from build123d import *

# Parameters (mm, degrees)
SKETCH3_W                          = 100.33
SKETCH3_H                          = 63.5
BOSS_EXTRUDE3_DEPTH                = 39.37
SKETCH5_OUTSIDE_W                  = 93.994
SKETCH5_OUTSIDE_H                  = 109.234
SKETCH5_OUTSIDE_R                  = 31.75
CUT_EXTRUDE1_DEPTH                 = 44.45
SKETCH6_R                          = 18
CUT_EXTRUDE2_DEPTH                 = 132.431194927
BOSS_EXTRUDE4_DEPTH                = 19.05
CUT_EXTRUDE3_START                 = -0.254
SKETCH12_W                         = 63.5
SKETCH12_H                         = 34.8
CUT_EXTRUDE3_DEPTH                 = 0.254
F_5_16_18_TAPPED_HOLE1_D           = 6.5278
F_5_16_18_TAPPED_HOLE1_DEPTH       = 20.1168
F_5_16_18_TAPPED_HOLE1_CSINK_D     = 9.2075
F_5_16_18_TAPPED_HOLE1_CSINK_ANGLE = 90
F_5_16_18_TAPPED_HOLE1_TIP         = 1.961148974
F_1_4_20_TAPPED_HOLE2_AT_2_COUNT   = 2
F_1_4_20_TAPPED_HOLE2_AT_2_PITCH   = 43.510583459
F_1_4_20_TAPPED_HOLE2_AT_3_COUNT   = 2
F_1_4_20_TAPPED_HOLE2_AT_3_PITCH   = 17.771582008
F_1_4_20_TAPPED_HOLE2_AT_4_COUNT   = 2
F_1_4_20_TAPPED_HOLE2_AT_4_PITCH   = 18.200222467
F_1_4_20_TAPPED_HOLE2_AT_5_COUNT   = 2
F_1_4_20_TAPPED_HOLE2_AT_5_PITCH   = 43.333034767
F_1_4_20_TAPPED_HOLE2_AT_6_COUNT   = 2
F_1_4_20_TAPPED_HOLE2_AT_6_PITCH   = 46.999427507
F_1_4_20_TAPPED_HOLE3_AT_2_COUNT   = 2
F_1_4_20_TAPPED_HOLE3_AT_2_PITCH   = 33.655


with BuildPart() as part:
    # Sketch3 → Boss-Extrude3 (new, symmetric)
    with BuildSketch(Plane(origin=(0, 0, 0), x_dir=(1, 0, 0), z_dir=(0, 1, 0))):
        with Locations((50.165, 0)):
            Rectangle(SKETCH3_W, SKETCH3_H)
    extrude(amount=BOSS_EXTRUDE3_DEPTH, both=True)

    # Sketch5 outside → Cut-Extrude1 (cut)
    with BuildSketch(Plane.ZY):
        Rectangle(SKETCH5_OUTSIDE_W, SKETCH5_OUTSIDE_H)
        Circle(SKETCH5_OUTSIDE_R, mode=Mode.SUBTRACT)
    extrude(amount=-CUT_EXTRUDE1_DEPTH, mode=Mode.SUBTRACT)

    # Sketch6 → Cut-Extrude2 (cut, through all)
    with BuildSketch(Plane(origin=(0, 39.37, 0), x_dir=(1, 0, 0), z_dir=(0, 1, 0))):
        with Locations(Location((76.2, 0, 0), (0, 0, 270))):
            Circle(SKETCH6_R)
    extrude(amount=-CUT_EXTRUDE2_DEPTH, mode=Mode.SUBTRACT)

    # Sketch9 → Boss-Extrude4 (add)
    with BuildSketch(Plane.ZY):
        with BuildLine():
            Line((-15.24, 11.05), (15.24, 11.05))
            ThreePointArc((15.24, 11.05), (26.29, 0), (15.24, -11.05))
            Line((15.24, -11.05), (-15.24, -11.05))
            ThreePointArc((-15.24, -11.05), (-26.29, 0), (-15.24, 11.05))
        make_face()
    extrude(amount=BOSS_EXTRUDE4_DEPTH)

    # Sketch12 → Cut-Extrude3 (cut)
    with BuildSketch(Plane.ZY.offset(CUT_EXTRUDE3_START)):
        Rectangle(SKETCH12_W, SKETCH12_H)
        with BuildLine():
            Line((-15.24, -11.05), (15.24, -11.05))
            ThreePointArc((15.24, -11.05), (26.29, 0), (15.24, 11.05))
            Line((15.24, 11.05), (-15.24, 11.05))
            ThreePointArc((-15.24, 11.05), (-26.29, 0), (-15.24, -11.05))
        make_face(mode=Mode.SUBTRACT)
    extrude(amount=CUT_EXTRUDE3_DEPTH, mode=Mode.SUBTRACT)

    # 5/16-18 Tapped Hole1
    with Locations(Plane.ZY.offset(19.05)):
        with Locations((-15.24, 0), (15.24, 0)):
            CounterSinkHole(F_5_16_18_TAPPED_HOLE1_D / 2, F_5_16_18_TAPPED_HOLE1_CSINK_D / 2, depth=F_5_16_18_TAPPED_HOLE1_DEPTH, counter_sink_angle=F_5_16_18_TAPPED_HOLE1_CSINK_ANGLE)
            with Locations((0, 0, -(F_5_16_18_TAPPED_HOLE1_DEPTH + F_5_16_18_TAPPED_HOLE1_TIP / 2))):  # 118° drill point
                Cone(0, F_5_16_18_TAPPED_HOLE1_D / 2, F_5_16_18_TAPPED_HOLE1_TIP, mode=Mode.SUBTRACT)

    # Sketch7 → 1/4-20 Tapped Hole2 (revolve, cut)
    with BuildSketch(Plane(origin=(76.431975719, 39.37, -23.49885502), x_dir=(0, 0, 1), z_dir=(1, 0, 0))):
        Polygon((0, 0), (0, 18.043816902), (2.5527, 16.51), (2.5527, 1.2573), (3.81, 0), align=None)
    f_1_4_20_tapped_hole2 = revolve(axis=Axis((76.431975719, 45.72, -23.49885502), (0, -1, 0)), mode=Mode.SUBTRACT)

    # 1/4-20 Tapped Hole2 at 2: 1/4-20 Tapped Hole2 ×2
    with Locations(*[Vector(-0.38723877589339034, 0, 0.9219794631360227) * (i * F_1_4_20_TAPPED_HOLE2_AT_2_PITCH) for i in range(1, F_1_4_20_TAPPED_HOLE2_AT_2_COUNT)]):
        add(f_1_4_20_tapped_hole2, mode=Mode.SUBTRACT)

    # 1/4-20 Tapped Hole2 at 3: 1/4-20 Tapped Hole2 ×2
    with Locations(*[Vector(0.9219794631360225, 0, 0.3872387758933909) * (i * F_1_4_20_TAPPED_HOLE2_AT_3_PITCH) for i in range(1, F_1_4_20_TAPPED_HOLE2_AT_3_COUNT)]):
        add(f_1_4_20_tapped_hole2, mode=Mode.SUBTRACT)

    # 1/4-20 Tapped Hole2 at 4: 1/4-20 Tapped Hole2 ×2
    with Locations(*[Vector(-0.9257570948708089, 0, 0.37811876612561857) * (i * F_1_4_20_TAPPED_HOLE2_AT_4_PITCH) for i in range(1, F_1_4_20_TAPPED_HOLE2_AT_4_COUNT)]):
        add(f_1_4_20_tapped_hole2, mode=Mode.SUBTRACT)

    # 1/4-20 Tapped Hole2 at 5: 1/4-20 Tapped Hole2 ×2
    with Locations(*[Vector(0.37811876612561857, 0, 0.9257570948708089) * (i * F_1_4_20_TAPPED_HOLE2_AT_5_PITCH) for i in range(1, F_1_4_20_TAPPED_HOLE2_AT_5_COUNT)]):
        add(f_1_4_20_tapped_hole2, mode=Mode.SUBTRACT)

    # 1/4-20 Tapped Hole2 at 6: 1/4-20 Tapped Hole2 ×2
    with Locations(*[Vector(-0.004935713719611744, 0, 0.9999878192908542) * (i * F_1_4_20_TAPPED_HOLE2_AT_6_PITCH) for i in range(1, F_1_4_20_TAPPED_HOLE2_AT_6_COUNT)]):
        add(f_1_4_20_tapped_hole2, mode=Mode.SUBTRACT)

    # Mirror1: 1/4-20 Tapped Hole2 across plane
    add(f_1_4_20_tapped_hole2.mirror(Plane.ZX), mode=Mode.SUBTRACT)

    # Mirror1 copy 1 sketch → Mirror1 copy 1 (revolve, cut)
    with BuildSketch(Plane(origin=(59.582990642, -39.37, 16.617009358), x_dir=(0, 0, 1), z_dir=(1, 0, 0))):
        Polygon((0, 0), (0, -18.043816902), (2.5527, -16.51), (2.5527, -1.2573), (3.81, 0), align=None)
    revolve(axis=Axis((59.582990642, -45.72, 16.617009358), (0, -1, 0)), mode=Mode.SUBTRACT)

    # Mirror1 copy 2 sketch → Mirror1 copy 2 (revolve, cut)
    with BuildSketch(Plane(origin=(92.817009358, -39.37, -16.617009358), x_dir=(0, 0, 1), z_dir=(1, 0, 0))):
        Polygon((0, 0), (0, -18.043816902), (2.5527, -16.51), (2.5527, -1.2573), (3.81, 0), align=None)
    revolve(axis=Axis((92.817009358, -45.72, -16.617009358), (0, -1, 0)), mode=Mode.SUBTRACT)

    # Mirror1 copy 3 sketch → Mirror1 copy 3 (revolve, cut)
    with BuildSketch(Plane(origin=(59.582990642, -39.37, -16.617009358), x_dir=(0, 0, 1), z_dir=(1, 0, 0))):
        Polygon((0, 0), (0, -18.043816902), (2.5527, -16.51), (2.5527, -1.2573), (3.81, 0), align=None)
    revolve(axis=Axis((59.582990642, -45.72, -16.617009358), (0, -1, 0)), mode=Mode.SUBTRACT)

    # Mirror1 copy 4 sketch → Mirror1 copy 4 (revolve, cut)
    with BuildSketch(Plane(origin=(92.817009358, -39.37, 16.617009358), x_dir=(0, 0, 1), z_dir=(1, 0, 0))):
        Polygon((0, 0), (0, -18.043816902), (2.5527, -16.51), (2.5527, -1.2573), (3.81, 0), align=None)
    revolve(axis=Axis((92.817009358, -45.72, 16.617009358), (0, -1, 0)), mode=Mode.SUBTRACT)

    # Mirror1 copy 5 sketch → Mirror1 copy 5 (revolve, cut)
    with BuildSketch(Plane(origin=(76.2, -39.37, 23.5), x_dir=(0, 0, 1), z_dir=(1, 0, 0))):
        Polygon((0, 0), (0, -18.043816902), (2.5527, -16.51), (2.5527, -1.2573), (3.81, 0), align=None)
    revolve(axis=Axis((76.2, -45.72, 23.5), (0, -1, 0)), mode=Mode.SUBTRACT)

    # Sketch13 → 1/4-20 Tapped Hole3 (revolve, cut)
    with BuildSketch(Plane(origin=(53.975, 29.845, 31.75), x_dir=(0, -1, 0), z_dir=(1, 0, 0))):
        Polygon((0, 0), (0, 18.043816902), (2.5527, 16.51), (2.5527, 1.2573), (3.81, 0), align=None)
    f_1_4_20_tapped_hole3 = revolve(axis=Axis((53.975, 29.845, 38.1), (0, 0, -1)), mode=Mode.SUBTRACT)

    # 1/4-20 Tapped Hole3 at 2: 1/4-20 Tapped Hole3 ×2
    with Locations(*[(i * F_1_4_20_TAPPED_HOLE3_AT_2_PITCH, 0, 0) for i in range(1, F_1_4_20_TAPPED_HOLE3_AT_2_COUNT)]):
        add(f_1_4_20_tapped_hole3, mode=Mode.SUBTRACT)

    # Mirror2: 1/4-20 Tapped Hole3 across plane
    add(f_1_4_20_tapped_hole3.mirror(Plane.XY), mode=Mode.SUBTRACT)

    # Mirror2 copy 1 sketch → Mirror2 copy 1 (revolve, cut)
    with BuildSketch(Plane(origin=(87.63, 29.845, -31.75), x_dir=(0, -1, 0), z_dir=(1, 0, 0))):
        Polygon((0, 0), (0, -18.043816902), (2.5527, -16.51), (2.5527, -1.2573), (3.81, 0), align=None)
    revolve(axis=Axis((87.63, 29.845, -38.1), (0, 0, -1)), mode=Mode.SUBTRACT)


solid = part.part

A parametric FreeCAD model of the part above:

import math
import FreeCAD as App
import Part
import Sketcher

V = App.Vector
Q = App.Units.Quantity


def add_polygon(sketch, points):
    """Adds a closed chain of lines whose ends are joined by coincident constraints."""
    first, n = sketch.GeometryCount, len(points)
    for a, b in zip(points, points[1:] + points[:1]):
        sketch.addGeometry(Part.LineSegment(App.Vector(*a, 0), App.Vector(*b, 0)), False)
    for i in range(n):
        sketch.addConstraint(Sketcher.Constraint("Coincident", first + i, 2, first + (i + 1) % n, 1))

doc = App.newDocument("Part")
body = doc.addObject("PartDesign::Body", "Body")

# Sketch on XZ plane
sketch1 = body.newObject("Sketcher::SketchObject", "Sketch")
sketch1.AttachmentSupport = (doc.getObject("XZ_Plane"), [""])
sketch1.MapMode = "FlatFace"
add_polygon(sketch1, [(0, -31.75), (0, 31.75), (100.33, 31.75), (100.33, -31.75)])  # lines 0-3
sketch1.addConstraint([
    Sketcher.Constraint("Vertical", 0),
    Sketcher.Constraint("Horizontal", 1),
    Sketcher.Constraint("Vertical", 2),
    Sketcher.Constraint("Horizontal", 3),
    Sketcher.Constraint("Symmetric", 0, 2, 3, 2, -1, 1),
    Sketcher.Constraint("DistanceY", 0, 1, 0, 2, Q("2.5 in")),
    Sketcher.Constraint("DistanceX", 1, 1, 1, 2, Q("3.95 in")),
])
pad1 = body.newObject("PartDesign::Pad", "Pad")
pad1.Profile = sketch1
pad1.Length = Q("3.1 in")
pad1.Midplane = True

# Sketch on YZ plane
sketch2 = body.newObject("Sketcher::SketchObject", "Sketch001")
sketch2.AttachmentSupport = (doc.getObject("YZ_Plane"), [""])
sketch2.MapMode = "FlatFace"
add_polygon(sketch2, [(54.617, -46.997), (-54.617, -46.997), (-54.617, 46.997), (54.617, 46.997)])  # lines 0-3
sketch2.addGeometry(Part.Circle(V(0, 0, 0), V(0, 0, 1), 31.75), False)  # 4
sketch2.addConstraint([
    Sketcher.Constraint("Horizontal", 0),
    Sketcher.Constraint("Vertical", 1),
    Sketcher.Constraint("Horizontal", 2),
    Sketcher.Constraint("Vertical", 3),
    Sketcher.Constraint("Coincident", 4, 3, -1, 1),
    Sketcher.Constraint("Symmetric", 0, 2, 2, 2, -1, 1),
    Sketcher.Constraint("Diameter", 4, Q("2.5 in")),
    Sketcher.Constraint("DistanceX", 0, 2, 0, 1, Q("109.234 mm")),
    Sketcher.Constraint("DistanceY", 1, 1, 1, 2, Q("93.994 mm")),
])
pocket1 = body.newObject("PartDesign::Pocket", "Pocket")
pocket1.Profile = sketch2
pocket1.Length = Q("1.75 in")
pocket1.Reversed = True

# Sketch on XZ plane
sketch3 = body.newObject("Sketcher::SketchObject", "Sketch002")
sketch3.AttachmentSupport = (doc.getObject("XZ_Plane"), [""])
sketch3.MapMode = "FlatFace"
sketch3.AttachmentOffset = App.Placement(V(0, 0, -1.55 * 25.4), App.Rotation())
sketch3.addGeometry(Part.Circle(V(76.2, 0, 0), V(0, 0, 1), 18), False)
sketch3.addConstraint([
    Sketcher.Constraint("PointOnObject", 0, 3, -1),
    Sketcher.Constraint("DistanceX", -1, 1, 0, 3, Q("3 in")),
    Sketcher.Constraint("Diameter", 0, Q("36 mm")),
])
pocket2 = body.newObject("PartDesign::Pocket", "Pocket001")
pocket2.Profile = sketch3
pocket2.Type = "ThroughAll"
pocket2.Reversed = True

# Sketch on YZ plane
sketch4 = body.newObject("Sketcher::SketchObject", "Sketch003")
sketch4.AttachmentSupport = (doc.getObject("YZ_Plane"), [""])
sketch4.MapMode = "FlatFace"
sketch4.addGeometry([
    Part.LineSegment(V(11.05, 15.24, 0), V(11.05, -15.24, 0)),
    Part.ArcOfCircle(Part.Circle(V(0, -15.24, 0), V(0, 0, 1), 11.05), math.radians(180), math.radians(360)),
    Part.LineSegment(V(-11.05, -15.24, 0), V(-11.05, 15.24, 0)),
    Part.ArcOfCircle(Part.Circle(V(0, 15.24, 0), V(0, 0, 1), 11.05), math.radians(0), math.radians(180)),
], False)
sketch4.addConstraint([
    Sketcher.Constraint("Tangent", 0, 2, 1, 2),
    Sketcher.Constraint("Tangent", 1, 1, 2, 1),
    Sketcher.Constraint("Tangent", 2, 2, 3, 2),
    Sketcher.Constraint("Tangent", 3, 1, 0, 1),
    Sketcher.Constraint("Vertical", 0),
    Sketcher.Constraint("Vertical", 2),
    Sketcher.Constraint("Symmetric", 1, 3, 3, 3, -1, 1),
    Sketcher.Constraint("DistanceY", 0, 2, 0, 1, Q("1.2 in")),
    Sketcher.Constraint("Radius", 1, Q("11.05 mm")),
])
pad2 = body.newObject("PartDesign::Pad", "Pad001")
pad2.Profile = sketch4
pad2.Length = Q("0.75 in")
pad2.Reversed = True

# Sketch on YZ plane
sketch5 = body.newObject("Sketcher::SketchObject", "Sketch004")
sketch5.AttachmentSupport = (doc.getObject("YZ_Plane"), [""])
sketch5.MapMode = "FlatFace"
sketch5.AttachmentOffset = App.Placement(V(0, 0, 0.01 * 25.4), App.Rotation())
add_polygon(sketch5, [(17.4, -31.75), (-17.4, -31.75), (-17.4, 31.75), (17.4, 31.75)])  # lines 0-3
sketch5.addGeometry(Part.LineSegment(V(-11.05, 15.24, 0), V(-11.05, -15.24, 0)), False)  # 4
sketch5.addGeometry(Part.ArcOfCircle(Part.Circle(V(0, -15.24, 0), V(0, 0, 1), 11.05), math.radians(180), math.radians(360)), False)  # 5
sketch5.addGeometry(Part.LineSegment(V(11.05, -15.24, 0), V(11.05, 15.24, 0)), False)  # 6
sketch5.addGeometry(Part.ArcOfCircle(Part.Circle(V(0, 15.24, 0), V(0, 0, 1), 11.05), math.radians(0), math.radians(180)), False)  # 7
sketch5.addConstraint([
    Sketcher.Constraint("Tangent", 4, 2, 5, 1),
    Sketcher.Constraint("Tangent", 5, 2, 6, 1),
    Sketcher.Constraint("Tangent", 6, 2, 7, 1),
    Sketcher.Constraint("Tangent", 7, 2, 4, 1),
    Sketcher.Constraint("Horizontal", 0),
    Sketcher.Constraint("Vertical", 1),
    Sketcher.Constraint("Horizontal", 2),
    Sketcher.Constraint("Vertical", 3),
    Sketcher.Constraint("Vertical", 4),
    Sketcher.Constraint("Vertical", 6),
    Sketcher.Constraint("Symmetric", 5, 3, 7, 3, -1, 1),
    Sketcher.Constraint("Symmetric", 0, 2, 2, 2, -1, 1),
    Sketcher.Constraint("DistanceY", 1, 1, 1, 2, Q("2.5 in")),
    Sketcher.Constraint("DistanceY", 4, 2, 4, 1, Q("1.2 in")),
    Sketcher.Constraint("Radius", 5, Q("11.05 mm")),
    Sketcher.Constraint("DistanceX", 0, 2, 4, 2, Q("0.25 in")),
])
pocket3 = body.newObject("PartDesign::Pocket", "Pocket002")
pocket3.Profile = sketch5
pocket3.Length = Q("0.01 in")

# Sketch on YZ plane
sketch6 = body.newObject("Sketcher::SketchObject", "Sketch005")
sketch6.AttachmentSupport = (doc.getObject("YZ_Plane"), [""])
sketch6.MapMode = "FlatFace"
sketch6.AttachmentOffset = App.Placement(V(0, 0, -0.75 * 25.4), App.Rotation())
sketch6.addGeometry([
    Part.Circle(V(0, -15.24, 0), V(0, 0, 1), 3.2639),
    Part.Circle(V(0, 15.24, 0), V(0, 0, 1), 3.2639),
], False)
sketch6.addConstraint([
    Sketcher.Constraint("Equal", 0, 1),
    Sketcher.Constraint("Symmetric", 0, 3, 1, 3, -1, 1),
    Sketcher.Constraint("PointOnObject", 0, 3, -2),
    Sketcher.Constraint("Diameter", 0, Q("0.257 in")),
    Sketcher.Constraint("DistanceY", 0, 3, -1, 1, Q("0.6 in")),
])
doc.recompute()
hole = body.newObject("PartDesign::Hole", "Hole")
hole.Profile = sketch6
hole.ThreadType = "None"
hole.Diameter = Q("0.257 in")
hole.DepthType = "Dimension"
hole.Depth = Q("0.792 in")
hole.DrillPoint = "Angled"
hole.DrillPointAngle = 118
hole.HoleCutType = "Countersink"
hole.HoleCutDiameter = Q("0.3625 in")
hole.HoleCutCountersinkAngle = 90
hole.Reversed = True

# Sketch on YZ plane
sketch7 = body.newObject("Sketcher::SketchObject", "Sketch006")
sketch7.AttachmentSupport = (doc.getObject("YZ_Plane"), [""])
sketch7.MapMode = "FlatFace"
sketch7.AttachmentOffset = App.Placement(V(0, 0, 76.431976), App.Rotation())
add_polygon(sketch7, [(21.326183, -23.498855), (39.37, -23.498855), (39.37, -19.688855), (38.1127, -20.946155), (22.86, -20.946155)])  # lines 0-4
sketch7.addGeometry(Part.LineSegment(V(39.37, -23.498855, 0), V(21.326183, -23.498855, 0)), True)  # axis
sketch7.addConstraint([
    Sketcher.Constraint("Horizontal", 0),
    Sketcher.Constraint("Vertical", 1),
    Sketcher.Constraint("Horizontal", 3),
    Sketcher.Constraint("Horizontal", 5),
    Sketcher.Constraint("Coincident", 5, 1, 0, 2),
    Sketcher.Constraint("Equal", 0, 5),
    Sketcher.Constraint("Angle", 2, Q("-135 deg")),
    Sketcher.Constraint("Angle", 4, Q("-121 deg")),
    Sketcher.Constraint("DistanceY", 1, 1, 1, 2, Q("0.15 in")),
    Sketcher.Constraint("DistanceX", -1, 1, 3, 2, Q("0.9 in")),
    Sketcher.Constraint("DistanceX", -1, 1, 0, 2, Q("1.55 in")),
    Sketcher.Constraint("DistanceX", 3, 2, 3, 1, Q("0.6005 in")),
    Sketcher.Constraint("DistanceY", 0, 2, -1, 1, Q("23.498855 mm")),
])
groove = body.newObject("PartDesign::Groove", "Groove")
groove.Profile = sketch7
groove.ReferenceAxis = (sketch7, ["Axis0"])
groove.Angle = 360
doc.recompute()

datumline = body.newObject("PartDesign::Line", "DatumLine")
datumline.Placement = App.Placement(V(0, 0, 0), App.Rotation(V(0, 0, 1), V(-0.387238776, 0, 0.921979463)))
linearpattern = body.newObject("PartDesign::LinearPattern", "LinearPattern")
linearpattern.Originals = [groove]
linearpattern.Direction = (datumline, [""])
linearpattern.Mode = "offset"
linearpattern.Offset = 43.510583
linearpattern.Occurrences = 2
body.Tip = linearpattern
doc.recompute()

datumline2 = body.newObject("PartDesign::Line", "DatumLine001")
datumline2.Placement = App.Placement(V(0, 0, 0), App.Rotation(V(0, 0, 1), V(0.921979463, 0, 0.387238776)))
linearpattern2 = body.newObject("PartDesign::LinearPattern", "LinearPattern001")
linearpattern2.Originals = [groove]
linearpattern2.Direction = (datumline2, [""])
linearpattern2.Mode = "offset"
linearpattern2.Offset = 17.771582
linearpattern2.Occurrences = 2
body.Tip = linearpattern2
doc.recompute()

datumline3 = body.newObject("PartDesign::Line", "DatumLine002")
datumline3.Placement = App.Placement(V(0, 0, 0), App.Rotation(V(0, 0, 1), V(-0.925757095, 0, 0.378118766)))
linearpattern3 = body.newObject("PartDesign::LinearPattern", "LinearPattern002")
linearpattern3.Originals = [groove]
linearpattern3.Direction = (datumline3, [""])
linearpattern3.Mode = "offset"
linearpattern3.Offset = 18.200222
linearpattern3.Occurrences = 2
body.Tip = linearpattern3
doc.recompute()

datumline4 = body.newObject("PartDesign::Line", "DatumLine003")
datumline4.Placement = App.Placement(V(0, 0, 0), App.Rotation(V(0, 0, 1), V(0.378118766, 0, 0.925757095)))
linearpattern4 = body.newObject("PartDesign::LinearPattern", "LinearPattern003")
linearpattern4.Originals = [groove]
linearpattern4.Direction = (datumline4, [""])
linearpattern4.Mode = "offset"
linearpattern4.Offset = 43.333035
linearpattern4.Occurrences = 2
body.Tip = linearpattern4
doc.recompute()

datumline5 = body.newObject("PartDesign::Line", "DatumLine004")
datumline5.Placement = App.Placement(V(0, 0, 0), App.Rotation(V(0, 0, 1), V(-0.004935714, 0, 0.999987819)))
linearpattern5 = body.newObject("PartDesign::LinearPattern", "LinearPattern004")
linearpattern5.Originals = [groove]
linearpattern5.Direction = (datumline5, [""])
linearpattern5.Mode = "offset"
linearpattern5.Offset = 46.999428
linearpattern5.Occurrences = 2
body.Tip = linearpattern5
doc.recompute()

mirrored = body.newObject("PartDesign::Mirrored", "Mirrored")
mirrored.Originals = [groove]
mirrored.MirrorPlane = (doc.getObject("XZ_Plane"), [""])
body.Tip = mirrored

# Sketch on YZ plane
sketch8 = body.newObject("Sketcher::SketchObject", "Sketch007")
sketch8.AttachmentSupport = (doc.getObject("YZ_Plane"), [""])
sketch8.MapMode = "FlatFace"
sketch8.AttachmentOffset = App.Placement(V(0, 0, 59.582991), App.Rotation())
add_polygon(sketch8, [(-39.37, 16.617009), (-21.326183, 16.617009), (-22.86, 19.169709), (-38.1127, 19.169709), (-39.37, 20.427009)])  # lines 0-4
sketch8.addGeometry(Part.LineSegment(V(-21.326183, 16.617009, 0), V(-39.37, 16.617009, 0)), True)  # axis
sketch8.addConstraint([
    Sketcher.Constraint("Horizontal", 0),
    Sketcher.Constraint("Horizontal", 2),
    Sketcher.Constraint("Vertical", 4),
    Sketcher.Constraint("Horizontal", 5),
    Sketcher.Constraint("Coincident", 5, 1, 0, 2),
    Sketcher.Constraint("Vertical", 3, 2, 5, 2),
    Sketcher.Constraint("Angle", 1, Q("121 deg")),
    Sketcher.Constraint("Angle", 3, Q("135 deg")),
    Sketcher.Constraint("DistanceY", 4, 2, 4, 1, Q("0.15 in")),
    Sketcher.Constraint("DistanceX", 1, 2, -1, 1, Q("0.9 in")),
    Sketcher.Constraint("DistanceX", 3, 2, -1, 1, Q("1.55 in")),
    Sketcher.Constraint("DistanceX", 2, 2, 2, 1, Q("0.6005 in")),
    Sketcher.Constraint("DistanceY", -1, 1, 0, 2, Q("16.617009 mm")),
])
groove2 = body.newObject("PartDesign::Groove", "Groove001")
groove2.Profile = sketch8
groove2.ReferenceAxis = (sketch8, ["Axis0"])
groove2.Angle = 360

# Sketch on YZ plane
sketch9 = body.newObject("Sketcher::SketchObject", "Sketch008")
sketch9.AttachmentSupport = (doc.getObject("YZ_Plane"), [""])
sketch9.MapMode = "FlatFace"
sketch9.AttachmentOffset = App.Placement(V(0, 0, 92.817009), App.Rotation())
add_polygon(sketch9, [(-39.37, -16.617009), (-21.326183, -16.617009), (-22.86, -14.064309), (-38.1127, -14.064309), (-39.37, -12.807009)])  # lines 0-4
sketch9.addGeometry(Part.LineSegment(V(-21.326183, -16.617009, 0), V(-39.37, -16.617009, 0)), True)  # axis
sketch9.addConstraint([
    Sketcher.Constraint("Horizontal", 0),
    Sketcher.Constraint("Horizontal", 2),
    Sketcher.Constraint("Vertical", 4),
    Sketcher.Constraint("Horizontal", 5),
    Sketcher.Constraint("Coincident", 5, 1, 0, 2),
    Sketcher.Constraint("Vertical", 3, 2, 5, 2),
    Sketcher.Constraint("Angle", 1, Q("121 deg")),
    Sketcher.Constraint("Angle", 3, Q("135 deg")),
    Sketcher.Constraint("DistanceY", 4, 2, 4, 1, Q("0.15 in")),
    Sketcher.Constraint("DistanceX", 1, 2, -1, 1, Q("0.9 in")),
    Sketcher.Constraint("DistanceX", 3, 2, -1, 1, Q("1.55 in")),
    Sketcher.Constraint("DistanceX", 2, 2, 2, 1, Q("0.6005 in")),
    Sketcher.Constraint("DistanceY", 0, 2, -1, 1, Q("16.617009 mm")),
])
groove3 = body.newObject("PartDesign::Groove", "Groove002")
groove3.Profile = sketch9
groove3.ReferenceAxis = (sketch9, ["Axis0"])
groove3.Angle = 360

# Sketch on YZ plane
sketch10 = body.newObject("Sketcher::SketchObject", "Sketch009")
sketch10.AttachmentSupport = (doc.getObject("YZ_Plane"), [""])
sketch10.MapMode = "FlatFace"
sketch10.AttachmentOffset = App.Placement(V(0, 0, 59.582991), App.Rotation())
add_polygon(sketch10, [(-39.37, -16.617009), (-21.326183, -16.617009), (-22.86, -14.064309), (-38.1127, -14.064309), (-39.37, -12.807009)])  # lines 0-4
sketch10.addGeometry(Part.LineSegment(V(-21.326183, -16.617009, 0), V(-39.37, -16.617009, 0)), True)  # axis
sketch10.addConstraint([
    Sketcher.Constraint("Horizontal", 0),
    Sketcher.Constraint("Horizontal", 2),
    Sketcher.Constraint("Vertical", 4),
    Sketcher.Constraint("Horizontal", 5),
    Sketcher.Constraint("Coincident", 5, 1, 0, 2),
    Sketcher.Constraint("Vertical", 3, 2, 5, 2),
    Sketcher.Constraint("Angle", 1, Q("121 deg")),
    Sketcher.Constraint("Angle", 3, Q("135 deg")),
    Sketcher.Constraint("DistanceY", 4, 2, 4, 1, Q("0.15 in")),
    Sketcher.Constraint("DistanceX", 1, 2, -1, 1, Q("0.9 in")),
    Sketcher.Constraint("DistanceX", 3, 2, -1, 1, Q("1.55 in")),
    Sketcher.Constraint("DistanceX", 2, 2, 2, 1, Q("0.6005 in")),
    Sketcher.Constraint("DistanceY", 0, 2, -1, 1, Q("16.617009 mm")),
])
groove4 = body.newObject("PartDesign::Groove", "Groove003")
groove4.Profile = sketch10
groove4.ReferenceAxis = (sketch10, ["Axis0"])
groove4.Angle = 360

# Sketch on YZ plane
sketch11 = body.newObject("Sketcher::SketchObject", "Sketch010")
sketch11.AttachmentSupport = (doc.getObject("YZ_Plane"), [""])
sketch11.MapMode = "FlatFace"
sketch11.AttachmentOffset = App.Placement(V(0, 0, 92.817009), App.Rotation())
add_polygon(sketch11, [(-39.37, 16.617009), (-21.326183, 16.617009), (-22.86, 19.169709), (-38.1127, 19.169709), (-39.37, 20.427009)])  # lines 0-4
sketch11.addGeometry(Part.LineSegment(V(-21.326183, 16.617009, 0), V(-39.37, 16.617009, 0)), True)  # axis
sketch11.addConstraint([
    Sketcher.Constraint("Horizontal", 0),
    Sketcher.Constraint("Horizontal", 2),
    Sketcher.Constraint("Vertical", 4),
    Sketcher.Constraint("Horizontal", 5),
    Sketcher.Constraint("Coincident", 5, 1, 0, 2),
    Sketcher.Constraint("Vertical", 3, 2, 5, 2),
    Sketcher.Constraint("Angle", 1, Q("121 deg")),
    Sketcher.Constraint("Angle", 3, Q("135 deg")),
    Sketcher.Constraint("DistanceY", 4, 2, 4, 1, Q("0.15 in")),
    Sketcher.Constraint("DistanceX", 1, 2, -1, 1, Q("0.9 in")),
    Sketcher.Constraint("DistanceX", 3, 2, -1, 1, Q("1.55 in")),
    Sketcher.Constraint("DistanceX", 2, 2, 2, 1, Q("0.6005 in")),
    Sketcher.Constraint("DistanceY", -1, 1, 0, 2, Q("16.617009 mm")),
])
groove5 = body.newObject("PartDesign::Groove", "Groove004")
groove5.Profile = sketch11
groove5.ReferenceAxis = (sketch11, ["Axis0"])
groove5.Angle = 360

# Sketch on YZ plane
sketch12 = body.newObject("Sketcher::SketchObject", "Sketch011")
sketch12.AttachmentSupport = (doc.getObject("YZ_Plane"), [""])
sketch12.MapMode = "FlatFace"
sketch12.AttachmentOffset = App.Placement(V(0, 0, 3 * 25.4), App.Rotation())
add_polygon(sketch12, [(-39.37, 23.5), (-21.326183, 23.5), (-22.86, 26.0527), (-38.1127, 26.0527), (-39.37, 27.31)])  # lines 0-4
sketch12.addGeometry(Part.LineSegment(V(-21.326183, 23.5, 0), V(-39.37, 23.5, 0)), True)  # axis
sketch12.addConstraint([
    Sketcher.Constraint("Horizontal", 0),
    Sketcher.Constraint("Horizontal", 2),
    Sketcher.Constraint("Vertical", 4),
    Sketcher.Constraint("Horizontal", 5),
    Sketcher.Constraint("Coincident", 5, 1, 0, 2),
    Sketcher.Constraint("Vertical", 3, 2, 5, 2),
    Sketcher.Constraint("Angle", 1, Q("121 deg")),
    Sketcher.Constraint("Angle", 3, Q("135 deg")),
    Sketcher.Constraint("DistanceY", 4, 2, 4, 1, Q("0.15 in")),
    Sketcher.Constraint("DistanceX", 1, 2, -1, 1, Q("0.9 in")),
    Sketcher.Constraint("DistanceX", 3, 2, -1, 1, Q("1.55 in")),
    Sketcher.Constraint("DistanceX", 2, 2, 2, 1, Q("0.6005 in")),
    Sketcher.Constraint("DistanceY", -1, 1, 0, 2, Q("23.5 mm")),
])
groove6 = body.newObject("PartDesign::Groove", "Groove005")
groove6.Profile = sketch12
groove6.ReferenceAxis = (sketch12, ["Axis0"])
groove6.Angle = 360

# Sketch on YZ plane
sketch13 = body.newObject("Sketcher::SketchObject", "Sketch012")
sketch13.AttachmentSupport = (doc.getObject("YZ_Plane"), [""])
sketch13.MapMode = "FlatFace"
sketch13.AttachmentOffset = App.Placement(V(0, 0, 2.125 * 25.4), App.Rotation())
add_polygon(sketch13, [(29.845, 13.706183), (29.845, 31.75), (26.035, 31.75), (27.2923, 30.4927), (27.2923, 15.24)])  # lines 0-4
sketch13.addGeometry(Part.LineSegment(V(29.845, 31.75, 0), V(29.845, 13.706183, 0)), True)  # axis
sketch13.addConstraint([
    Sketcher.Constraint("Vertical", 0),
    Sketcher.Constraint("Horizontal", 1),
    Sketcher.Constraint("Vertical", 3),
    Sketcher.Constraint("Vertical", 5),
    Sketcher.Constraint("Coincident", 5, 1, 0, 2),
    Sketcher.Constraint("Equal", 0, 5),
    Sketcher.Constraint("Angle", 2, Q("-45 deg")),
    Sketcher.Constraint("Angle", 4, Q("-31 deg")),
    Sketcher.Constraint("DistanceX", 1, 2, 1, 1, Q("0.15 in")),
    Sketcher.Constraint("DistanceY", -1, 1, 3, 2, Q("0.6 in")),
    Sketcher.Constraint("DistanceY", -1, 1, 0, 2, Q("1.25 in")),
    Sketcher.Constraint("DistanceY", 3, 2, 3, 1, Q("0.6005 in")),
    Sketcher.Constraint("DistanceX", -1, 1, 0, 2, Q("1.175 in")),
])
groove7 = body.newObject("PartDesign::Groove", "Groove006")
groove7.Profile = sketch13
groove7.ReferenceAxis = (sketch13, ["Axis0"])
groove7.Angle = 360
doc.recompute()

linearpattern6 = body.newObject("PartDesign::LinearPattern", "LinearPattern005")
linearpattern6.Originals = [groove7]
linearpattern6.Direction = (doc.getObject("X_Axis"), [""])
linearpattern6.Mode = "offset"
linearpattern6.Offset = Q("1.325 in")
linearpattern6.Occurrences = 2
body.Tip = linearpattern6
doc.recompute()

mirrored2 = body.newObject("PartDesign::Mirrored", "Mirrored001")
mirrored2.Originals = [groove7]
mirrored2.MirrorPlane = (doc.getObject("XY_Plane"), [""])
body.Tip = mirrored2

# Sketch on YZ plane
sketch14 = body.newObject("Sketcher::SketchObject", "Sketch013")
sketch14.AttachmentSupport = (doc.getObject("YZ_Plane"), [""])
sketch14.MapMode = "FlatFace"
sketch14.AttachmentOffset = App.Placement(V(0, 0, 3.45 * 25.4), App.Rotation())
add_polygon(sketch14, [(29.845, -31.75), (29.845, -13.706183), (27.2923, -15.24), (27.2923, -30.4927), (26.035, -31.75)])  # lines 0-4
sketch14.addGeometry(Part.LineSegment(V(29.845, -13.706183, 0), V(29.845, -31.75, 0)), True)  # axis
sketch14.addConstraint([
    Sketcher.Constraint("Vertical", 0),
    Sketcher.Constraint("Vertical", 2),
    Sketcher.Constraint("Horizontal", 4),
    Sketcher.Constraint("Vertical", 5),
    Sketcher.Constraint("Coincident", 5, 1, 0, 2),
    Sketcher.Constraint("Horizontal", 3, 2, 5, 2),
    Sketcher.Constraint("Angle", 1, Q("-149 deg")),
    Sketcher.Constraint("Angle", 3, Q("-135 deg")),
    Sketcher.Constraint("DistanceX", 4, 1, 4, 2, Q("0.15 in")),
    Sketcher.Constraint("DistanceY", 1, 2, -1, 1, Q("0.6 in")),
    Sketcher.Constraint("DistanceY", 3, 2, -1, 1, Q("1.25 in")),
    Sketcher.Constraint("DistanceY", 2, 2, 2, 1, Q("0.6005 in")),
    Sketcher.Constraint("DistanceX", -1, 1, 0, 2, Q("1.175 in")),
])
groove8 = body.newObject("PartDesign::Groove", "Groove007")
groove8.Profile = sketch14
groove8.ReferenceAxis = (sketch14, ["Axis0"])
groove8.Angle = 360

doc.recompute()
